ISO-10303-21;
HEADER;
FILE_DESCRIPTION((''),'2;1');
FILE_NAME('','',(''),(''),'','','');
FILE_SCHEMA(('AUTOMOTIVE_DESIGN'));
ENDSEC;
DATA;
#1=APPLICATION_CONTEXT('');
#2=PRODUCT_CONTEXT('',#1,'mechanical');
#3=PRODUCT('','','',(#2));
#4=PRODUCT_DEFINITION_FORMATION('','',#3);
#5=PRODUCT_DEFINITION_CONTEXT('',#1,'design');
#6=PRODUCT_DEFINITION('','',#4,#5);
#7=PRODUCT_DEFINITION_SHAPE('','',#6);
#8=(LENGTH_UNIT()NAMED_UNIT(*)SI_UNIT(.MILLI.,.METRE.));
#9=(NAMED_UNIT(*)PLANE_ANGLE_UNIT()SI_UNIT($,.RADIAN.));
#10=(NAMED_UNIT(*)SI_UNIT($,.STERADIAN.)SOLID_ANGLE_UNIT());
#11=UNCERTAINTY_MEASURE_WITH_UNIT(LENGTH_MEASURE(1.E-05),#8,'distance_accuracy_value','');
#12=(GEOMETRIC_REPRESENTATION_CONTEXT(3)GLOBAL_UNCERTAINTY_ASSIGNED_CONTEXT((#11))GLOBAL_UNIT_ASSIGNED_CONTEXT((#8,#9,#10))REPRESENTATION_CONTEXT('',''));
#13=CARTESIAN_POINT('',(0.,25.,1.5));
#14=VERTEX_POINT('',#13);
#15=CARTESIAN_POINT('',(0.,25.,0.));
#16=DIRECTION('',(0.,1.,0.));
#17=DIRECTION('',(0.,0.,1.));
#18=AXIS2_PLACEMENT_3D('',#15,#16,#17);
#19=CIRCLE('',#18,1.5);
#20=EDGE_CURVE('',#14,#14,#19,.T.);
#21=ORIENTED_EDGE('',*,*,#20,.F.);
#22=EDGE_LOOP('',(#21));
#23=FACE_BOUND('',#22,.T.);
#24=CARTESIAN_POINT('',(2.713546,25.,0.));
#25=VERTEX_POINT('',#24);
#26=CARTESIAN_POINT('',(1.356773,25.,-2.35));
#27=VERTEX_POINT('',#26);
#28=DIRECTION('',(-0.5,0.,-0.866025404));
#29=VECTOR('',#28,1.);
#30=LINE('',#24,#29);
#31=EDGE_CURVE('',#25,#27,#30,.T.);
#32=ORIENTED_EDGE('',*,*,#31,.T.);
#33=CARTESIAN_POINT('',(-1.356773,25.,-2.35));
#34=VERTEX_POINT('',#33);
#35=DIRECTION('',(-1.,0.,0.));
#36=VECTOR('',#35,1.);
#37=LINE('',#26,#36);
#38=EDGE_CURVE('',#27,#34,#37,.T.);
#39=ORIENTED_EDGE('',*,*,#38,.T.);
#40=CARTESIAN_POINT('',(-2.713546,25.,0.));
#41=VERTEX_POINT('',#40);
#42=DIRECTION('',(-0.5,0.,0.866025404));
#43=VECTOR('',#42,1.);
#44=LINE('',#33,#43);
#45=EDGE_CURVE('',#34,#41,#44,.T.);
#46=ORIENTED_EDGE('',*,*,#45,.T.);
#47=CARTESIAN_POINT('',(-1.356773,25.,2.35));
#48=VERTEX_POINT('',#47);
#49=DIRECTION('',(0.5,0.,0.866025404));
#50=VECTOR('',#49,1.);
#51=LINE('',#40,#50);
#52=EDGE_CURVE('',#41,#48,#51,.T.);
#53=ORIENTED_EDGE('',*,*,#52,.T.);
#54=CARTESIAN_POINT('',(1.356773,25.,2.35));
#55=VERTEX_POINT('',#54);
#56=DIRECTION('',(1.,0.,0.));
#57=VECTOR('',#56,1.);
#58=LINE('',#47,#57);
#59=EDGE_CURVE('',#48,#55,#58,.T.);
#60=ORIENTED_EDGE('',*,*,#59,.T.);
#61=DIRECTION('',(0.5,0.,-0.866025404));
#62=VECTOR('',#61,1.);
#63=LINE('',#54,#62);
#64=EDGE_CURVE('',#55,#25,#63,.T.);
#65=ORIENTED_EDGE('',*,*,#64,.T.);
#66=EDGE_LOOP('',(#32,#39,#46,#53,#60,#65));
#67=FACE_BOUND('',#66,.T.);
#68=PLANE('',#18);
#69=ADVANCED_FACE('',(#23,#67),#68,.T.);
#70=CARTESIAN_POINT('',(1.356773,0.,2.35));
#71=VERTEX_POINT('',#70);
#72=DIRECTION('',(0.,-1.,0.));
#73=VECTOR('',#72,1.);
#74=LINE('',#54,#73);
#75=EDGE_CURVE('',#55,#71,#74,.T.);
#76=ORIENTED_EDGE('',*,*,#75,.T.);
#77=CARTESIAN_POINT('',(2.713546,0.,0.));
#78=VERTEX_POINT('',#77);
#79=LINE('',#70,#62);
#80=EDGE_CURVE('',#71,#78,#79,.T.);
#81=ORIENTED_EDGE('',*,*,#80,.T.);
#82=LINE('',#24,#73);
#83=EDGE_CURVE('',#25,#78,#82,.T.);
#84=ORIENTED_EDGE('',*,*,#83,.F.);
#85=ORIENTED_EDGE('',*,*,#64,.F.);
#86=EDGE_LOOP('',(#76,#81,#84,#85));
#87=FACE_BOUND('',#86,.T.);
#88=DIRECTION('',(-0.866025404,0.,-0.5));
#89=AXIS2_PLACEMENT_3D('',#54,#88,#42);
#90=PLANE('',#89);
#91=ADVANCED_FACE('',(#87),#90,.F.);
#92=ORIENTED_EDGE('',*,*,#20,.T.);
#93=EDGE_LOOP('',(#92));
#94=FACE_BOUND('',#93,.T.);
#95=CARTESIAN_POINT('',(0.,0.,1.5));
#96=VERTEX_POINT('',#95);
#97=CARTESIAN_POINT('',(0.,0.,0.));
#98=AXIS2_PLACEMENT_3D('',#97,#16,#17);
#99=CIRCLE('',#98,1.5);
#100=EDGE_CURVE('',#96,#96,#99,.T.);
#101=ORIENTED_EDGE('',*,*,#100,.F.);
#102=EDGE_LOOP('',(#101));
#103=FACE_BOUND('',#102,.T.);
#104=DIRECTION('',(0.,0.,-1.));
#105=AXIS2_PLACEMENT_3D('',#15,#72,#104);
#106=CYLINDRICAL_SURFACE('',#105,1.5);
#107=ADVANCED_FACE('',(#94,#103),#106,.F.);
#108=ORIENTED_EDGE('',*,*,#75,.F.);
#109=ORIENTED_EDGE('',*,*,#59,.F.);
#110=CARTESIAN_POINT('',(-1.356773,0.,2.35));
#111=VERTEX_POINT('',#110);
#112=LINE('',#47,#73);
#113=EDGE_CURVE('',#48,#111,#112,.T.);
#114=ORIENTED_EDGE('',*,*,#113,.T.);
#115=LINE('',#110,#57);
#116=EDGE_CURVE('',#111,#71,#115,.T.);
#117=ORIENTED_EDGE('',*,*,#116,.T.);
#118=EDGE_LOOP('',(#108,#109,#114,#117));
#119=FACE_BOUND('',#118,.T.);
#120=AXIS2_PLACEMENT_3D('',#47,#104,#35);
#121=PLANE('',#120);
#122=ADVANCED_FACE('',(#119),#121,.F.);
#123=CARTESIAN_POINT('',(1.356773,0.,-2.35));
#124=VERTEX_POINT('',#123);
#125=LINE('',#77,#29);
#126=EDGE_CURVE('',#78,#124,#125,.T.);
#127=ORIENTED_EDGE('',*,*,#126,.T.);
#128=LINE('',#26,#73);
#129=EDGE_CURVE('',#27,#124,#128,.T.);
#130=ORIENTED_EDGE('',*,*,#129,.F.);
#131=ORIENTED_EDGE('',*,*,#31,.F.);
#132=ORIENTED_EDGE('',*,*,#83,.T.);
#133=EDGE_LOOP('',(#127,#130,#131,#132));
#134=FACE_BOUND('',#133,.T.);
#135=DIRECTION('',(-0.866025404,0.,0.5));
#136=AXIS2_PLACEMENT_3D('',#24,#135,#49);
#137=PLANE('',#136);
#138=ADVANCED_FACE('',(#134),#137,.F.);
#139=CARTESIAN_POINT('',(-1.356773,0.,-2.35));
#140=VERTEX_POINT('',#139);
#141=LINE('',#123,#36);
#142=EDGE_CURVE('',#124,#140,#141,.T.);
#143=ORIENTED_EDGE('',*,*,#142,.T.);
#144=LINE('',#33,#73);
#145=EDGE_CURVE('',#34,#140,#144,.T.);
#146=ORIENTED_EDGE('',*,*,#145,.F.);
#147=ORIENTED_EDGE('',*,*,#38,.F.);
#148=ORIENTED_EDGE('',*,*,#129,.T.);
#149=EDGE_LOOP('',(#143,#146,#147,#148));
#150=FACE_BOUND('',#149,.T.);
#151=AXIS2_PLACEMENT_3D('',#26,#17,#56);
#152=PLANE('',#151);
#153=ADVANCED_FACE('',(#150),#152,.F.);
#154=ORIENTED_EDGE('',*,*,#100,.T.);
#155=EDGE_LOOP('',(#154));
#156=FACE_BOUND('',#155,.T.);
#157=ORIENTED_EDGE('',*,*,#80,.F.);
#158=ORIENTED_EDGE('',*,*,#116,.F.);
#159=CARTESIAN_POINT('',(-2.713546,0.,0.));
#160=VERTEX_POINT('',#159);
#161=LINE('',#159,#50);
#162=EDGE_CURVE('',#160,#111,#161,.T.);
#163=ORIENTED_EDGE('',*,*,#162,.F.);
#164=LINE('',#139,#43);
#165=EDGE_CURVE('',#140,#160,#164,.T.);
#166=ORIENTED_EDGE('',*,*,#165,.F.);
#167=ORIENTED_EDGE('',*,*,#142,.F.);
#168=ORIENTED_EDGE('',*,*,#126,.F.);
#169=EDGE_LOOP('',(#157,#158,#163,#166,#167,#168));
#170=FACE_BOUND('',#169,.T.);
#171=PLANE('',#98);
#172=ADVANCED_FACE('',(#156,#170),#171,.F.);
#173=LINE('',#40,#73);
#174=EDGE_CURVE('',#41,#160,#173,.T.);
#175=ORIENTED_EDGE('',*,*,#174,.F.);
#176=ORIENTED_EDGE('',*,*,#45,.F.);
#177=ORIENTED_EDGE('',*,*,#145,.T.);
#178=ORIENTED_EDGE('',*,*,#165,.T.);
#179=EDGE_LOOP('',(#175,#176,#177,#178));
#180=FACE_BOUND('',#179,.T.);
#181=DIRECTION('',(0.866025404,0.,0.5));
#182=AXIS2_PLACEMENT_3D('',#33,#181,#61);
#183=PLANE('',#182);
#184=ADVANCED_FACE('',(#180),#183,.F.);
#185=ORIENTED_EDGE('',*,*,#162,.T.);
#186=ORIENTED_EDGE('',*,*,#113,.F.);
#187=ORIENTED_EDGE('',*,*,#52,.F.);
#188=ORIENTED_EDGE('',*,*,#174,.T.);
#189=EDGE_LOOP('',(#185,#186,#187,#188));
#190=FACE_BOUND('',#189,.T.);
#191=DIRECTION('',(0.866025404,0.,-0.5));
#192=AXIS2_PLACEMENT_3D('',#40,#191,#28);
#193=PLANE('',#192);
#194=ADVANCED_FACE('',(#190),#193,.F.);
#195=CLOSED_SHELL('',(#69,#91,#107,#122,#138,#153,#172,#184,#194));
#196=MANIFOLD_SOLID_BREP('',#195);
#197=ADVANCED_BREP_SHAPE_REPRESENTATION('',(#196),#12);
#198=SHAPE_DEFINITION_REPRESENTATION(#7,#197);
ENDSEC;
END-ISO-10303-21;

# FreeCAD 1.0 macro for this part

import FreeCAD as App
import Part
import Sketcher

V = App.Vector
Q = App.Units.Quantity


def add_polygon(sketch, points):
    """Adds a closed chain of lines whose ends are joined by coincident constraints."""
    first, n = sketch.GeometryCount, len(points)
    for a, b in zip(points, points[1:] + points[:1]):
        sketch.addGeometry(Part.LineSegment(App.Vector(*a, 0), App.Vector(*b, 0)), False)
    for i in range(n):
        sketch.addConstraint(Sketcher.Constraint("Coincident", first + i, 2, first + (i + 1) % n, 1))

doc = App.newDocument("Part")
body = doc.addObject("PartDesign::Body", "Body")

sketch1 = body.newObject("Sketcher::SketchObject", "Sketch")
sketch1.AttachmentSupport = (doc.getObject("XZ_Plane"), [""])
sketch1.MapMode = "FlatFace"
add_polygon(sketch1, [(2.7, 0), (1.4, -2.4), (-1.4, -2.4), (-2.7, 0), (-1.4, 2.4), (1.4, 2.4)])
sketch1.addGeometry(Part.Circle(V(0, 0, 0), V(0, 0, 1), 1.5), False)
sketch1.addConstraint([
    Sketcher.Constraint("Horizontal", 1),
    Sketcher.Constraint("Horizontal", 4),
    Sketcher.Constraint("Coincident", 6, 3, -1, 1),
    Sketcher.Constraint("Symmetric", 0, 2, 3, 2, -1, 1),
    Sketcher.Constraint("Symmetric", 2, 2, 5, 2, -1, 1),
    Sketcher.Constraint("PointOnObject", 2, 2, -1),
    Sketcher.Constraint("Parallel", 2, 5),
    Sketcher.Constraint("Vertical", 1, 2, 3, 2),
    Sketcher.Constraint("Diameter", 6, 3.0),
    Sketcher.Constraint("Angle", 0, Q("-120 deg")),
    Sketcher.Constraint("DistanceY", 1, 2, 3, 2, 4.7),
    Sketcher.Constraint("DistanceX", 1, 2, 1, 1, 2.713546),
])
pad1 = body.newObject("PartDesign::Pad", "Pad")
pad1.Profile = sketch1
pad1.Length = 25
pad1.Reversed = True

doc.recompute()
